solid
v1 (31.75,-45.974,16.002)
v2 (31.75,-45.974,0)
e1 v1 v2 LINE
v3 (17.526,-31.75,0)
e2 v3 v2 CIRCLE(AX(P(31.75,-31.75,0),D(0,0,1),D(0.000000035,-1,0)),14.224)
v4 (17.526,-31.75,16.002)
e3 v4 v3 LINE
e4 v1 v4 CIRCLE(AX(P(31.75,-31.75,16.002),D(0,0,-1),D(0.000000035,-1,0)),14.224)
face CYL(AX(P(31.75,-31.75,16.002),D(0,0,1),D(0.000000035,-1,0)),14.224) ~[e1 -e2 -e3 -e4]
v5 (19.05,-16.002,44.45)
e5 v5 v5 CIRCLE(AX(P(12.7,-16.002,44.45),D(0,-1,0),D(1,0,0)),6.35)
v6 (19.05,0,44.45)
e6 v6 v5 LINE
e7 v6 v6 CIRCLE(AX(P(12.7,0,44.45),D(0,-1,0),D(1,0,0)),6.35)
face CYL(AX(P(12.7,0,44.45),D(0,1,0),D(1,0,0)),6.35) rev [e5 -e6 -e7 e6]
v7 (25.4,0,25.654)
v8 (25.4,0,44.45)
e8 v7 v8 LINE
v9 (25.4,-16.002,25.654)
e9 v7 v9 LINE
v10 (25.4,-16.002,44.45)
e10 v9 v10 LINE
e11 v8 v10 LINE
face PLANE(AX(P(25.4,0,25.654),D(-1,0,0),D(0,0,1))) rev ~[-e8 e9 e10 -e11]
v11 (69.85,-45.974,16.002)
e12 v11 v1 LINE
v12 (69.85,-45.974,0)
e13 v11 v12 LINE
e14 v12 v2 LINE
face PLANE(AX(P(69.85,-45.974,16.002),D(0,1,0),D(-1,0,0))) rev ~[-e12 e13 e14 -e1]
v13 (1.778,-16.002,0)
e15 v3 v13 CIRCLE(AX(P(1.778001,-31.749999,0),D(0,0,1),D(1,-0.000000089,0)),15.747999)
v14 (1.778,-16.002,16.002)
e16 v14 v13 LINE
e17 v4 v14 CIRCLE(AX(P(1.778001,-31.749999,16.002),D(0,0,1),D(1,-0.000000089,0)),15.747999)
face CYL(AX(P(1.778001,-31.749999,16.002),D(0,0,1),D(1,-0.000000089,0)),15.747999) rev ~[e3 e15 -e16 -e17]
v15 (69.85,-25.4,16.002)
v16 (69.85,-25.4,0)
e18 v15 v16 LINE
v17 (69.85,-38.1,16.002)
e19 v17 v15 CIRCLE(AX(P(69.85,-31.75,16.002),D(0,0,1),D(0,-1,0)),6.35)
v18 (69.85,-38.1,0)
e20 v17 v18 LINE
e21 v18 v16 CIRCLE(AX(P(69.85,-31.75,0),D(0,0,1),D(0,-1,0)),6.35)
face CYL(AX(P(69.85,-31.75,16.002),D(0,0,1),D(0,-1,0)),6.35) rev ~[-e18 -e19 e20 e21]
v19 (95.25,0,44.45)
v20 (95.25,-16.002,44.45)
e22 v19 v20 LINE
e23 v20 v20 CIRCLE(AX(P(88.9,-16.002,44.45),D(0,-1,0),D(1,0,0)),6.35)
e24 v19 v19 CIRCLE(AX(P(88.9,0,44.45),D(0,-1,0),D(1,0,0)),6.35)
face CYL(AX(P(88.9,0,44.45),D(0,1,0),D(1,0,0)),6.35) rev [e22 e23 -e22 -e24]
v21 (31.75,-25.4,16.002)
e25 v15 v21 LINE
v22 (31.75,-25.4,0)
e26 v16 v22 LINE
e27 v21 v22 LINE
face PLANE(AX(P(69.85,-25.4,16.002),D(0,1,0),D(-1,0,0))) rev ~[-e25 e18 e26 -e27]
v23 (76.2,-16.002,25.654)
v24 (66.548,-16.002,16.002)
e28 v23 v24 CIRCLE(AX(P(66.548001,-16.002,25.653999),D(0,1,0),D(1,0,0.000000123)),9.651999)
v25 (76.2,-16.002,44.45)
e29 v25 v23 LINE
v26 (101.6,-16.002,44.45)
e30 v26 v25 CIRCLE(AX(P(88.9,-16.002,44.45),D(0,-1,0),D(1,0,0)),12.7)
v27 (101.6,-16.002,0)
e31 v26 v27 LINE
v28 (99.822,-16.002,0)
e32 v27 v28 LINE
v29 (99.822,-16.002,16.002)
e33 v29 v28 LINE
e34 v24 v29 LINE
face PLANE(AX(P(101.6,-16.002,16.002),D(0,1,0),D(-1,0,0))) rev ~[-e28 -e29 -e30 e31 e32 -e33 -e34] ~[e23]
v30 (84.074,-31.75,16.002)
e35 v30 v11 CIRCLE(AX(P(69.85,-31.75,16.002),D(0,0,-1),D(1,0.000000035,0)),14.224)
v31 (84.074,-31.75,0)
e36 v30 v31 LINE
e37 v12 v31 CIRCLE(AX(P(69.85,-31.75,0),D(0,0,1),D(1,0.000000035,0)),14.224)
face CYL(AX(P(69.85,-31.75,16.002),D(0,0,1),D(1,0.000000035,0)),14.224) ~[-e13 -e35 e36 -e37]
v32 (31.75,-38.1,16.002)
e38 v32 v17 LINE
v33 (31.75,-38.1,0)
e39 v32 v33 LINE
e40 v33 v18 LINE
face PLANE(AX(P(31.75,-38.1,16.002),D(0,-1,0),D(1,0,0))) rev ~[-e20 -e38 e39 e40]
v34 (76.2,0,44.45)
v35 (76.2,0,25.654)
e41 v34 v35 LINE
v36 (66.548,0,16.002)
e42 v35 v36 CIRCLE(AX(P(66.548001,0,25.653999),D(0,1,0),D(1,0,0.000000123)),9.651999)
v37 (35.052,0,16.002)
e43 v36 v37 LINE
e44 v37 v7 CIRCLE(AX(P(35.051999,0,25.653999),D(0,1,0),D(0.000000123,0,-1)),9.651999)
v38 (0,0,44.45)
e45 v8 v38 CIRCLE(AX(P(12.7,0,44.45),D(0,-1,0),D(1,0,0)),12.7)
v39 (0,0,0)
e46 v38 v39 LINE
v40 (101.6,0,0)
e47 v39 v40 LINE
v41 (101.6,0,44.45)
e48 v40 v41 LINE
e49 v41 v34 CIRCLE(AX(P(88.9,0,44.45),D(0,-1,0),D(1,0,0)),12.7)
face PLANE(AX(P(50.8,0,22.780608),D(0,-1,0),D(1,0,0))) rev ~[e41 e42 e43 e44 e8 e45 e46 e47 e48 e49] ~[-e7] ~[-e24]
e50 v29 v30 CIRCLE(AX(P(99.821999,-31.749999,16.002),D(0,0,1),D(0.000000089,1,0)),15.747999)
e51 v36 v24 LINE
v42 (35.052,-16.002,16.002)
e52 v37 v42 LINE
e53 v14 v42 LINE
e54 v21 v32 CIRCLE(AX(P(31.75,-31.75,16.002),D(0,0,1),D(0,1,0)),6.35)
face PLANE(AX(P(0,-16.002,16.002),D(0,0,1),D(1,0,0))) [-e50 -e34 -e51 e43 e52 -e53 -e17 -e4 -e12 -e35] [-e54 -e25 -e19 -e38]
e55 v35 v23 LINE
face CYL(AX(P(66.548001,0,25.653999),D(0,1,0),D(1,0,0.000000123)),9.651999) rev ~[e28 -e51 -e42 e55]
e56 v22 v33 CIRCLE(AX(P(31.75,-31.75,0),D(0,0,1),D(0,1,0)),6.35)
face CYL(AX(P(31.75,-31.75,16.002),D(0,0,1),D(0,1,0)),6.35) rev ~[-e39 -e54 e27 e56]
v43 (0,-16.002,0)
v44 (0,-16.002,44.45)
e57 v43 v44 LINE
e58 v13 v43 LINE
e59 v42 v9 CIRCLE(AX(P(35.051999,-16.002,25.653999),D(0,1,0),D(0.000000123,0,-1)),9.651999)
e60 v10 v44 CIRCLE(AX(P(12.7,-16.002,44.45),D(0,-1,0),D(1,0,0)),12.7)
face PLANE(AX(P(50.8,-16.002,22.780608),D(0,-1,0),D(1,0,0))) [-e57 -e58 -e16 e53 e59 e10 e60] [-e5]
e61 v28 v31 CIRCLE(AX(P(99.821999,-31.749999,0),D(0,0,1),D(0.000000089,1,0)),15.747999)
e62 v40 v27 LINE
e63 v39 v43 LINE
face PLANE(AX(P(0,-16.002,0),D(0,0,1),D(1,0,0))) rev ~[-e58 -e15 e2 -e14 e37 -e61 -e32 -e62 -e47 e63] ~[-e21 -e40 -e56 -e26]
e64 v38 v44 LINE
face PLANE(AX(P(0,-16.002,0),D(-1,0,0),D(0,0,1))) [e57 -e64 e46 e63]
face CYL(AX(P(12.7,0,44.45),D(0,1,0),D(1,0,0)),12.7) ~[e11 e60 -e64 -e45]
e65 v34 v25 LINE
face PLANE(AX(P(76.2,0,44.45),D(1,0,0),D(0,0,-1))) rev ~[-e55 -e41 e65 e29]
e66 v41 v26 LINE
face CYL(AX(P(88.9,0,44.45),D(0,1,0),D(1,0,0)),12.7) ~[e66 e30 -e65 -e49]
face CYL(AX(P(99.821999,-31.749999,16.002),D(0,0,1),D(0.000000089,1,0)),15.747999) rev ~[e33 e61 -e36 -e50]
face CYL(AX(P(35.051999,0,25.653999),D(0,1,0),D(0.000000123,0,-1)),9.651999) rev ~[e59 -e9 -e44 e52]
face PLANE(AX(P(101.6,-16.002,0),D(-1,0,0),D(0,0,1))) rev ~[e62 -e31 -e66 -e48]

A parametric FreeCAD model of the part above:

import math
import FreeCAD as App
import Part
import Sketcher

V = App.Vector
Q = App.Units.Quantity

doc = App.newDocument("Part")
body = doc.addObject("PartDesign::Body", "Body")

# Sketch on XZ plane
sketch1 = body.newObject("Sketcher::SketchObject", "Sketch")
sketch1.AttachmentSupport = (doc.getObject("XZ_Plane"), [""])
sketch1.MapMode = "FlatFace"
sketch1.addGeometry(Part.LineSegment(V(102, 0, 0), V(102, 44, 0)), False)
sketch1.addGeometry(Part.ArcOfCircle(Part.Circle(V(89, 44, 0), V(0, 0, 1), 13), math.radians(0), math.radians(180)), False)
sketch1.addGeometry(Part.LineSegment(V(76, 44, 0), V(76, 26, 0)), False)
sketch1.addGeometry(Part.ArcOfCircle(Part.Circle(V(67, 26, 0), V(0, 0, 1), 10), math.radians(-90), math.radians(0)), False)
sketch1.addGeometry(Part.LineSegment(V(67, 16, 0), V(35, 16, 0)), False)
sketch1.addGeometry(Part.ArcOfCircle(Part.Circle(V(35, 26, 0), V(0, 0, 1), 10), math.radians(180), math.radians(270)), False)
sketch1.addGeometry(Part.LineSegment(V(25, 26, 0), V(25, 44, 0)), False)
sketch1.addGeometry(Part.ArcOfCircle(Part.Circle(V(13, 44, 0), V(0, 0, 1), 13), math.radians(0), math.radians(180)), False)
sketch1.addGeometry(Part.LineSegment(V(0, 44, 0), V(0, 0, 0)), False)
sketch1.addGeometry(Part.LineSegment(V(0, 0, 0), V(102, 0, 0)), False)
sketch1.addGeometry(Part.Circle(V(13, 44, 0), V(0, 0, 1), 6), False)
sketch1.addGeometry(Part.Circle(V(89, 44, 0), V(0, 0, 1), 6), False)
sketch1.addConstraint(Sketcher.Constraint("Tangent", 0, 2, 1, 1))
sketch1.addConstraint(Sketcher.Constraint("Tangent", 1, 2, 2, 1))
sketch1.addConstraint(Sketcher.Constraint("Tangent", 2, 2, 3, 2))
sketch1.addConstraint(Sketcher.Constraint("Tangent", 3, 1, 4, 1))
sketch1.addConstraint(Sketcher.Constraint("Tangent", 4, 2, 5, 2))
sketch1.addConstraint(Sketcher.Constraint("Tangent", 5, 1, 6, 1))
sketch1.addConstraint(Sketcher.Constraint("Tangent", 6, 2, 7, 1))
sketch1.addConstraint(Sketcher.Constraint("Tangent", 7, 2, 8, 1))
sketch1.addConstraint(Sketcher.Constraint("Coincident", 8, 2, 9, 1))
sketch1.addConstraint(Sketcher.Constraint("Coincident", 9, 2, 0, 1))
sketch1.addConstraint(Sketcher.Constraint("Vertical", 0))
sketch1.addConstraint(Sketcher.Constraint("Vertical", 2))
sketch1.addConstraint(Sketcher.Constraint("Horizontal", 4))
sketch1.addConstraint(Sketcher.Constraint("Vertical", 6))
sketch1.addConstraint(Sketcher.Constraint("Vertical", 8))
sketch1.addConstraint(Sketcher.Constraint("Horizontal", 9))
sketch1.addConstraint(Sketcher.Constraint("Coincident", 8, 2, -1, 1))
sketch1.addConstraint(Sketcher.Constraint("Coincident", 10, 3, 7, 3))
sketch1.addConstraint(Sketcher.Constraint("Coincident", 11, 3, 1, 3))
sketch1.addConstraint(Sketcher.Constraint("Equal", 3, 5))
sketch1.addConstraint(Sketcher.Constraint("Equal", 1, 7))
sketch1.addConstraint(Sketcher.Constraint("Equal", 10, 11))
sketch1.addConstraint(Sketcher.Constraint("Horizontal", 1, 3, 7, 3))
sketch1.addConstraint(Sketcher.Constraint("Diameter", 10, Q("0.5 in")))
sketch1.addConstraint(Sketcher.Constraint("Radius", 1, Q("0.5 in")))
sketch1.addConstraint(Sketcher.Constraint("DistanceX", 9, 1, 9, 2, Q("4 in")))
sketch1.addConstraint(Sketcher.Constraint("Radius", 3, Q("0.38 in")))
sketch1.addConstraint(Sketcher.Constraint("DistanceY", 0, 1, 0, 2, Q("1.75 in")))
sketch1.addConstraint(Sketcher.Constraint("DistanceY", 2, 2, 2, 1, Q("0.74 in")))
pad1 = body.newObject("PartDesign::Pad", "Pad")
pad1.Profile = sketch1
pad1.Length = Q("0.63 in")

# Sketch on XZ plane
sketch2 = body.newObject("Sketcher::SketchObject", "Sketch001")
sketch2.AttachmentSupport = (doc.getObject("XZ_Plane"), [""])
sketch2.MapMode = "FlatFace"
sketch2.AttachmentOffset = App.Placement(V(0, 0, 0.63 * 25.4), App.Rotation())
sketch2.addGeometry(Part.LineSegment(V(0, 16, 0), V(0, 0, 0)), False)
sketch2.addGeometry(Part.LineSegment(V(0, 0, 0), V(102, 0, 0)), False)
sketch2.addGeometry(Part.LineSegment(V(102, 0, 0), V(102, 16, 0)), False)
sketch2.addGeometry(Part.LineSegment(V(102, 16, 0), V(0, 16, 0)), False)
sketch2.addConstraint(Sketcher.Constraint("Coincident", 0, 2, 1, 1))
sketch2.addConstraint(Sketcher.Constraint("Coincident", 1, 2, 2, 1))
sketch2.addConstraint(Sketcher.Constraint("Coincident", 2, 2, 3, 1))
sketch2.addConstraint(Sketcher.Constraint("Coincident", 3, 2, 0, 1))
sketch2.addConstraint(Sketcher.Constraint("Vertical", 0))
sketch2.addConstraint(Sketcher.Constraint("Horizontal", 1))
sketch2.addConstraint(Sketcher.Constraint("Vertical", 2))
sketch2.addConstraint(Sketcher.Constraint("Horizontal", 3))
sketch2.addConstraint(Sketcher.Constraint("Coincident", 0, 2, -1, 1))
sketch2.addConstraint(Sketcher.Constraint("DistanceX", 1, 1, 1, 2, Q("4 in")))
sketch2.addConstraint(Sketcher.Constraint("DistanceY", 0, 2, 0, 1, Q("0.63 in")))
pad2 = body.newObject("PartDesign::Pad", "Pad001")
pad2.Profile = sketch2
pad2.Length = Q("2 in")

# Sketch on XY plane
sketch3 = body.newObject("Sketcher::SketchObject", "Sketch002")
sketch3.AttachmentSupport = (doc.getObject("XY_Plane"), [""])
sketch3.MapMode = "FlatFace"
sketch3.AttachmentOffset = App.Placement(V(0, 0, 0.63 * 25.4), App.Rotation())
sketch3.addGeometry(Part.ArcOfCircle(Part.Circle(V(31.7, -31.8, 0), V(0, 0, 1), 14.2), math.radians(180), math.radians(270)), False)
sketch3.addGeometry(Part.ArcOfCircle(Part.Circle(V(1.8, -31.7, 0), V(0, 0, 1), 15.7), math.radians(0), math.radians(90)), False)
sketch3.addGeometry(Part.LineSegment(V(1.8, -16, 0), V(0, -16, 0)), False)
sketch3.addGeometry(Part.LineSegment(V(0, -16, 0), V(0, -66.8, 0)), False)
sketch3.addGeometry(Part.LineSegment(V(0, -66.8, 0), V(101.6, -66.8, 0)), False)
sketch3.addGeometry(Part.LineSegment(V(101.6, -66.8, 0), V(101.6, -16, 0)), False)
sketch3.addGeometry(Part.LineSegment(V(101.6, -16, 0), V(99.8, -16, 0)), False)
sketch3.addGeometry(Part.ArcOfCircle(Part.Circle(V(99.8, -31.7, 0), V(0, 0, 1), 15.7), math.radians(90), math.radians(180)), False)
sketch3.addGeometry(Part.ArcOfCircle(Part.Circle(V(69.9, -31.8, 0), V(0, 0, 1), 14.2), math.radians(-90), math.radians(0)), False)
sketch3.addGeometry(Part.LineSegment(V(69.8, -46, 0), V(31.8, -46, 0)), False)
sketch3.addGeometry(Part.LineSegment(V(69.8, -25.4, 0), V(31.8, -25.4, 0)), False)
sketch3.addGeometry(Part.ArcOfCircle(Part.Circle(V(31.8, -31.8, 0), V(0, 0, 1), 6.3), math.radians(90), math.radians(270)), False)
sketch3.addGeometry(Part.LineSegment(V(31.8, -38.1, 0), V(69.8, -38.1, 0)), False)
sketch3.addGeometry(Part.ArcOfCircle(Part.Circle(V(69.8, -31.8, 0), V(0, 0, 1), 6.3), math.radians(-90), math.radians(90)), False)
sketch3.addConstraint(Sketcher.Constraint("Tangent", 0, 1, 1, 1))
sketch3.addConstraint(Sketcher.Constraint("Tangent", 1, 2, 2, 1))
sketch3.addConstraint(Sketcher.Constraint("Coincident", 2, 2, 3, 1))
sketch3.addConstraint(Sketcher.Constraint("Coincident", 3, 2, 4, 1))
sketch3.addConstraint(Sketcher.Constraint("Coincident", 4, 2, 5, 1))
sketch3.addConstraint(Sketcher.Constraint("Coincident", 5, 2, 6, 1))
sketch3.addConstraint(Sketcher.Constraint("Tangent", 6, 2, 7, 1))
sketch3.addConstraint(Sketcher.Constraint("Tangent", 7, 2, 8, 2))
sketch3.addConstraint(Sketcher.Constraint("Tangent", 8, 1, 9, 1))
sketch3.addConstraint(Sketcher.Constraint("Tangent", 9, 2, 0, 2))
sketch3.addConstraint(Sketcher.Constraint("Tangent", 10, 2, 11, 1))
sketch3.addConstraint(Sketcher.Constraint("Tangent", 11, 2, 12, 1))
sketch3.addConstraint(Sketcher.Constraint("Tangent", 12, 2, 13, 1))
sketch3.addConstraint(Sketcher.Constraint("Tangent", 13, 2, 10, 1))
sketch3.addConstraint(Sketcher.Constraint("Horizontal", 2))
sketch3.addConstraint(Sketcher.Constraint("Vertical", 3))
sketch3.addConstraint(Sketcher.Constraint("Horizontal", 4))
sketch3.addConstraint(Sketcher.Constraint("Vertical", 5))
sketch3.addConstraint(Sketcher.Constraint("Horizontal", 6))
sketch3.addConstraint(Sketcher.Constraint("Horizontal", 9))
sketch3.addConstraint(Sketcher.Constraint("Horizontal", 10))
sketch3.addConstraint(Sketcher.Constraint("Horizontal", 12))
sketch3.addConstraint(Sketcher.Constraint("Coincident", 11, 3, 0, 3))
sketch3.addConstraint(Sketcher.Constraint("Coincident", 13, 3, 8, 3))
sketch3.addConstraint(Sketcher.Constraint("Equal", 1, 7))
sketch3.addConstraint(Sketcher.Constraint("PointOnObject", 2, 2, -2))
sketch3.addConstraint(Sketcher.Constraint("Horizontal", 0, 3, 1, 3))
sketch3.addConstraint(Sketcher.Constraint("Horizontal", 1, 3, 7, 3))
sketch3.addConstraint(Sketcher.Constraint("Equal", 2, 6))
sketch3.addConstraint(Sketcher.Constraint("DistanceX", 4, 1, 4, 2, Q("4 in")))
sketch3.addConstraint(Sketcher.Constraint("DistanceY", 3, 2, 3, 1, Q("2 in")))
sketch3.addConstraint(Sketcher.Constraint("Radius", 0, Q("0.56 in")))
sketch3.addConstraint(Sketcher.Constraint("Radius", 1, Q("0.6199999 in")))
sketch3.addConstraint(Sketcher.Constraint("Radius", 11, Q("0.25 in")))
sketch3.addConstraint(Sketcher.Constraint("DistanceX", 9, 2, 9, 1, Q("1.5 in")))
sketch3.addConstraint(Sketcher.Constraint("DistanceY", 10, 2, -1, 1, Q("1 in")))
pocket1 = body.newObject("PartDesign::Pocket", "Pocket")
pocket1.Profile = sketch3
pocket1.Type = "ThroughAll"

doc.recompute()
